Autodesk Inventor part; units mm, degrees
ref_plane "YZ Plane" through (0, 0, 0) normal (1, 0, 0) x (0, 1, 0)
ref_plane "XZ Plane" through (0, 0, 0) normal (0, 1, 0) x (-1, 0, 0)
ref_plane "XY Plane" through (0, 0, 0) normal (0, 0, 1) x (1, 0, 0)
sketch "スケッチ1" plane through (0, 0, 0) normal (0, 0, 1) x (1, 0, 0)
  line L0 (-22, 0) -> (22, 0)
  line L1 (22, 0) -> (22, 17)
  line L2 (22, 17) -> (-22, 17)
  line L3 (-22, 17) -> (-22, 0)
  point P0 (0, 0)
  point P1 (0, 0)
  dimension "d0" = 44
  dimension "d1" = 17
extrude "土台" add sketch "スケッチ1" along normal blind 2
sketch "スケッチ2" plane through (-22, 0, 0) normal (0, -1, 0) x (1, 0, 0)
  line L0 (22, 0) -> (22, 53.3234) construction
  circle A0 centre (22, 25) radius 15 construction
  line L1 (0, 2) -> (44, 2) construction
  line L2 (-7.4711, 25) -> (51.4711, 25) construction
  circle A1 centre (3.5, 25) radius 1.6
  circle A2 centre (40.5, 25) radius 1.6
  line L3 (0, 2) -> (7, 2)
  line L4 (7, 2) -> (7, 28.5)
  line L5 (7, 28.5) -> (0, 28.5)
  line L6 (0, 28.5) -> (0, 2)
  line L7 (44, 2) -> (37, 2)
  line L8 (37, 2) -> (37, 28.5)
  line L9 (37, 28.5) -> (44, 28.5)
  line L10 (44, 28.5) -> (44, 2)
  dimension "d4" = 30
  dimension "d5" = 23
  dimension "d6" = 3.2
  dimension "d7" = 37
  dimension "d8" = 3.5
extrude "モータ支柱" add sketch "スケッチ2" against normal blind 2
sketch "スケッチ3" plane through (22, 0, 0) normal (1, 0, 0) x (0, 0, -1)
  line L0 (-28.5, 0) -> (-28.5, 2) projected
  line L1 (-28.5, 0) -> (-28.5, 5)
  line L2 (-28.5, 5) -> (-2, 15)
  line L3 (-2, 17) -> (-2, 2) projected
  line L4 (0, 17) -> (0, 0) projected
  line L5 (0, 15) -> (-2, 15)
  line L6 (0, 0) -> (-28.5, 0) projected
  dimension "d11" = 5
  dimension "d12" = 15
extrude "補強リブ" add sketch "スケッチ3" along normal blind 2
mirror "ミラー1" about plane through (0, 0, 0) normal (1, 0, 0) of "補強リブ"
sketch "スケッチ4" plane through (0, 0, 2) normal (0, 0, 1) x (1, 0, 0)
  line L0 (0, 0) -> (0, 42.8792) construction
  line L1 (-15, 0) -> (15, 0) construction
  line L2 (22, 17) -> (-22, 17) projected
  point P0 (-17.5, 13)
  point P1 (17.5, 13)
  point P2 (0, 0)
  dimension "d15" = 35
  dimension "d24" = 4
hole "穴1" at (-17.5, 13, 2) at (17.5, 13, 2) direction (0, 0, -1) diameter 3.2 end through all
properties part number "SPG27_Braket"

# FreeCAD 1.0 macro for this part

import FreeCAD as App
import Part
import Sketcher

V = App.Vector


def add_polygon(sketch, points):
    """Adds a closed chain of lines whose ends are joined by coincident constraints."""
    first, n = sketch.GeometryCount, len(points)
    for a, b in zip(points, points[1:] + points[:1]):
        sketch.addGeometry(Part.LineSegment(App.Vector(*a, 0), App.Vector(*b, 0)), False)
    for i in range(n):
        sketch.addConstraint(Sketcher.Constraint("Coincident", first + i, 2, first + (i + 1) % n, 1))

doc = App.newDocument("Part")
body = doc.addObject("PartDesign::Body", "Body")

sketch1 = doc.addObject("Sketcher::SketchObject", "Sketch")
body.addObject(sketch1)
sketch1.AttachmentSupport = (doc.XY_Plane, [""])
sketch1.MapMode = "FlatFace"
add_polygon(sketch1, [(-22, 17), (-22, 0), (22, 0), (22, 17)])
sketch1.addConstraint(Sketcher.Constraint("Vertical", 0))
sketch1.addConstraint(Sketcher.Constraint("Horizontal", 1))
sketch1.addConstraint(Sketcher.Constraint("Vertical", 2))
sketch1.addConstraint(Sketcher.Constraint("Horizontal", 3))
sketch1.addConstraint(Sketcher.Constraint("Symmetric", 0, 2, 1, 2, -1, 1))
sketch1.addConstraint(Sketcher.Constraint("DistanceX", 1, 1, 1, 2, 44.0))
sketch1.addConstraint(Sketcher.Constraint("DistanceY", 0, 2, 0, 1, 17.0))
pad1 = doc.addObject("PartDesign::Pad", "Pad")
body.addObject(pad1)
pad1.Profile = sketch1
pad1.Length = 2

sketch2 = doc.addObject("Sketcher::SketchObject", "Sketch001")
body.addObject(sketch2)
sketch2.AttachmentSupport = (doc.XZ_Plane, [""])
sketch2.MapMode = "FlatFace"
add_polygon(sketch2, [(-22, 28.5), (-22, 2), (-15, 2), (-15, 28.5)])
sketch2.addGeometry(Part.Circle(V(-18.5, 25, 0), V(0, 0, 1), 1.6), False)
add_polygon(sketch2, [(15, 2), (22, 2), (22, 28.5), (15, 28.5)])
sketch2.addGeometry(Part.Circle(V(18.5, 25, 0), V(0, 0, 1), 1.6), False)
sketch2.addConstraint(Sketcher.Constraint("Vertical", 0))
sketch2.addConstraint(Sketcher.Constraint("Horizontal", 1))
sketch2.addConstraint(Sketcher.Constraint("Vertical", 2))
sketch2.addConstraint(Sketcher.Constraint("Horizontal", 3))
sketch2.addConstraint(Sketcher.Constraint("Horizontal", 5))
sketch2.addConstraint(Sketcher.Constraint("Vertical", 6))
sketch2.addConstraint(Sketcher.Constraint("Horizontal", 7))
sketch2.addConstraint(Sketcher.Constraint("Vertical", 8))
sketch2.addConstraint(Sketcher.Constraint("Equal", 4, 9))
sketch2.addConstraint(Sketcher.Constraint("Symmetric", 4, 3, 9, 3, -2))
sketch2.addConstraint(Sketcher.Constraint("Symmetric", 0, 2, 5, 2, -2))
sketch2.addConstraint(Sketcher.Constraint("Symmetric", 2, 2, 7, 2, -2))
sketch2.addConstraint(Sketcher.Constraint("Diameter", 4, 3.2))
sketch2.addConstraint(Sketcher.Constraint("DistanceX", 4, 3, 9, 3, 37.0))
sketch2.addConstraint(Sketcher.Constraint("DistanceY", 0, 2, 4, 3, 23.0))
sketch2.addConstraint(Sketcher.Constraint("DistanceX", 1, 2, 5, 2, 37.0))
sketch2.addConstraint(Sketcher.Constraint("DistanceX", 2, 2, 7, 2, 30.0))
sketch2.addConstraint(Sketcher.Constraint("DistanceY", 4, 3, 2, 2, 3.5))
sketch2.addConstraint(Sketcher.Constraint("DistanceY", -1, 1, 4, 3, 25.0))
pad2 = doc.addObject("PartDesign::Pad", "Pad001")
body.addObject(pad2)
pad2.Profile = sketch2
pad2.Length = 2
pad2.Reversed = True

sketch3 = doc.addObject("Sketcher::SketchObject", "Sketch002")
body.addObject(sketch3)
sketch3.AttachmentSupport = (doc.YZ_Plane, [""])
sketch3.MapMode = "FlatFace"
sketch3.AttachmentOffset = App.Placement(V(0, 0, 22), App.Rotation())
add_polygon(sketch3, [(5, 28.5), (0, 28.5), (0, 0), (15, 0), (15, 2)])
sketch3.addConstraint(Sketcher.Constraint("Horizontal", 0))
sketch3.addConstraint(Sketcher.Constraint("Vertical", 1))
sketch3.addConstraint(Sketcher.Constraint("Horizontal", 2))
sketch3.addConstraint(Sketcher.Constraint("Vertical", 3))
sketch3.addConstraint(Sketcher.Constraint("Coincident", 1, 2, -1, 1))
sketch3.addConstraint(Sketcher.Constraint("DistanceX", 0, 2, 0, 1, 5.0))
sketch3.addConstraint(Sketcher.Constraint("DistanceX", 2, 1, 2, 2, 15.0))
sketch3.addConstraint(Sketcher.Constraint("DistanceY", 3, 1, 3, 2, 2.0))
sketch3.addConstraint(Sketcher.Constraint("DistanceY", 1, 2, 1, 1, 28.5))
pad3 = doc.addObject("PartDesign::Pad", "Pad002")
body.addObject(pad3)
pad3.Profile = sketch3
pad3.Length = 2
doc.recompute()

mirrored = doc.addObject("PartDesign::Mirrored", "Mirrored")
body.addObject(mirrored)
mirrored.Originals = [pad3]
mirrored.MirrorPlane = (doc.YZ_Plane, [""])
body.Tip = mirrored

sketch4 = doc.addObject("Sketcher::SketchObject", "Sketch003")
body.addObject(sketch4)
sketch4.AttachmentSupport = (doc.XY_Plane, [""])
sketch4.MapMode = "FlatFace"
sketch4.AttachmentOffset = App.Placement(V(0, 0, 2), App.Rotation())
sketch4.addGeometry(Part.Circle(V(-17.5, 13, 0), V(0, 0, 1), 1.6), False)
sketch4.addGeometry(Part.Circle(V(17.5, 13, 0), V(0, 0, 1), 1.6), False)
sketch4.addConstraint(Sketcher.Constraint("Equal", 0, 1))
sketch4.addConstraint(Sketcher.Constraint("Symmetric", 0, 3, 1, 3, -2))
sketch4.addConstraint(Sketcher.Constraint("Diameter", 0, 3.2))
sketch4.addConstraint(Sketcher.Constraint("DistanceY", -1, 1, 0, 3, 13.0))
sketch4.addConstraint(Sketcher.Constraint("DistanceX", 0, 3, 1, 3, 35.0))
doc.recompute()
hole = doc.addObject("PartDesign::Hole", "Hole")
body.addObject(hole)
hole.Profile = sketch4
hole.ThreadType = "None"
hole.Diameter = 3.2
hole.DepthType = "ThroughAll"

doc.recompute()
